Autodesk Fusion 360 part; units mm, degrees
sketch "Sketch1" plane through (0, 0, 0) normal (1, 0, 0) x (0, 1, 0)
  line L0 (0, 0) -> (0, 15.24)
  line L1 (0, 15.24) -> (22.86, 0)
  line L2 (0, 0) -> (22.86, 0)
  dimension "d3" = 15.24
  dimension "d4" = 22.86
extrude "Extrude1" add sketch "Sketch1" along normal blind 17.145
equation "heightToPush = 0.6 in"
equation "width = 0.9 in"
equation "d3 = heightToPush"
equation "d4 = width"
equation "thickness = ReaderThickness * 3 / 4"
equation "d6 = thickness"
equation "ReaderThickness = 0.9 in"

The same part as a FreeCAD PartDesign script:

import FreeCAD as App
import Part
import Sketcher
Q = App.Units.Quantity


def add_polygon(sketch, points):
    """Adds a closed chain of lines whose ends are joined by coincident constraints."""
    first, n = sketch.GeometryCount, len(points)
    for a, b in zip(points, points[1:] + points[:1]):
        sketch.addGeometry(Part.LineSegment(App.Vector(*a, 0), App.Vector(*b, 0)), False)
    for i in range(n):
        sketch.addConstraint(Sketcher.Constraint("Coincident", first + i, 2, first + (i + 1) % n, 1))

doc = App.newDocument("Part")
body = doc.addObject("PartDesign::Body", "Body")

# Sketch on YZ plane
sketch1 = body.newObject("Sketcher::SketchObject", "Sketch")
sketch1.AttachmentSupport = (doc.getObject("YZ_Plane"), [""])
sketch1.MapMode = "FlatFace"
add_polygon(sketch1, [(0, 15), (0, 0), (23, 0)])  # lines 0-2
sketch1.addConstraint([
    Sketcher.Constraint("Vertical", 0),
    Sketcher.Constraint("Horizontal", 1),
    Sketcher.Constraint("Coincident", 0, 2, -1, 1),
    Sketcher.Constraint("DistanceX", 1, 1, 1, 2, Q("0.9 in")),
    Sketcher.Constraint("DistanceY", 0, 2, 0, 1, Q("0.6 in")),
])
pad1 = body.newObject("PartDesign::Pad", "Pad")
pad1.Profile = sketch1
pad1.Length = Q("0.675 in")

doc.recompute()
